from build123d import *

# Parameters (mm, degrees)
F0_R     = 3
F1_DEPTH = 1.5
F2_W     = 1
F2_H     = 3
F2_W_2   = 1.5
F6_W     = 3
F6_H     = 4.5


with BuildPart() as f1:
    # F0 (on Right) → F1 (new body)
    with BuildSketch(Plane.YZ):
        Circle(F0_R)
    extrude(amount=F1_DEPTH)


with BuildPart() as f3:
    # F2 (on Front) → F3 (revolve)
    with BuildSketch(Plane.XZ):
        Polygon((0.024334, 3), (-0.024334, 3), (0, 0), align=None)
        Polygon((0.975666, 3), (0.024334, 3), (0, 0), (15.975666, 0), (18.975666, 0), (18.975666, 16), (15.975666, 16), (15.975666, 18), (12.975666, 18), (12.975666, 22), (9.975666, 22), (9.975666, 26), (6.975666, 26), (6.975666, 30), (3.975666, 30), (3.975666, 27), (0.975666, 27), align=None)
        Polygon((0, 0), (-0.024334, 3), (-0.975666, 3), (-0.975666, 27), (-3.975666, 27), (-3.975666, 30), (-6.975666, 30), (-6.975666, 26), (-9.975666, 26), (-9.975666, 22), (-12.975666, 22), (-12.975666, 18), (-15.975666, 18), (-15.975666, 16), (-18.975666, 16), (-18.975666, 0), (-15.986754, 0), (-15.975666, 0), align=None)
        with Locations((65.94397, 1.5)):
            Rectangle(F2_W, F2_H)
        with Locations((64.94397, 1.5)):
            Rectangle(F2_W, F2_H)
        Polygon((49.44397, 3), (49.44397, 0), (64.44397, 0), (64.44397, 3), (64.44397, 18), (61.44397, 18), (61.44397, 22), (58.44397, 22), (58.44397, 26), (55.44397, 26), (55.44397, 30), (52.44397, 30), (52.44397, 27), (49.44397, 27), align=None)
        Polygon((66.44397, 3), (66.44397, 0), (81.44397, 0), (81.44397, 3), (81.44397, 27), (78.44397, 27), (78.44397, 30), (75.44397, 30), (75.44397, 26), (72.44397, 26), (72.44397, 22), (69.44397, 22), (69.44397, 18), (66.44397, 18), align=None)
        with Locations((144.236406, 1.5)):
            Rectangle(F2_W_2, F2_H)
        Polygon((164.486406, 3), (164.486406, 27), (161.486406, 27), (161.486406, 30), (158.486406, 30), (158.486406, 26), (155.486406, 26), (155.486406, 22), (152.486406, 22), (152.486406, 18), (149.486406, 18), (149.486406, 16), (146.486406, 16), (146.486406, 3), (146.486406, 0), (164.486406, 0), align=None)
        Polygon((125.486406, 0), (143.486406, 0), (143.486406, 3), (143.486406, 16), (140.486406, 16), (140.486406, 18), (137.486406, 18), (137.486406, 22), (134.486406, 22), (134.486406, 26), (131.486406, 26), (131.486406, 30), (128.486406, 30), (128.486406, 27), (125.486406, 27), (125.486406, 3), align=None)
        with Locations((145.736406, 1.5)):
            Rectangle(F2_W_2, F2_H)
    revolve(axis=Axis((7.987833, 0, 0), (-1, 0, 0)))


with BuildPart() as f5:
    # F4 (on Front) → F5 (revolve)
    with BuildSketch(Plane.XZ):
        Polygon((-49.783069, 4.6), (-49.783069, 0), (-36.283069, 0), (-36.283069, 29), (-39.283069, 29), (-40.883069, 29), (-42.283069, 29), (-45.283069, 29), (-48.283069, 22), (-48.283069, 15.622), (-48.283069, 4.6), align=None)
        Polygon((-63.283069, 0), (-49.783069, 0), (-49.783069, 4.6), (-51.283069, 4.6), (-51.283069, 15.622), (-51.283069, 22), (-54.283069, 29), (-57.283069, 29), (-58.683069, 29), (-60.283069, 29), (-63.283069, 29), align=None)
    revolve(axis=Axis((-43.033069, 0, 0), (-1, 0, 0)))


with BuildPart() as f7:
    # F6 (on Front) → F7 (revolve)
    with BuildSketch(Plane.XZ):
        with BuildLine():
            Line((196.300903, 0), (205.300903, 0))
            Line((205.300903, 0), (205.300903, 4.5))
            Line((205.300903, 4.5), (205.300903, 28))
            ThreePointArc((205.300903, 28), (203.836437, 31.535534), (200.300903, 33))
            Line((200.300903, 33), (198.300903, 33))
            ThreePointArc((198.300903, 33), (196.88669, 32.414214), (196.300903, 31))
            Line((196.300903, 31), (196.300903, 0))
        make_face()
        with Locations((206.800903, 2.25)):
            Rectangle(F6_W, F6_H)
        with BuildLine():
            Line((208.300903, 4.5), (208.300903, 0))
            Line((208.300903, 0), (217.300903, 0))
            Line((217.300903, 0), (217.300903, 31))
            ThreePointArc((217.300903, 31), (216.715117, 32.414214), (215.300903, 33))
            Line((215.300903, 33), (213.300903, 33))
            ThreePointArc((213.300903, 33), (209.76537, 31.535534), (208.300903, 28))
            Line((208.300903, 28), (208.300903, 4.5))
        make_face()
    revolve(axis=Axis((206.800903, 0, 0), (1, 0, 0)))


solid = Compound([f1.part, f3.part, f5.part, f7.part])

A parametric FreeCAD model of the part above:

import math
import FreeCAD as App
import Part
import Sketcher

doc = App.newDocument("Part")
body = doc.addObject("PartDesign::Body", "Body")

# Sketch on YZ plane
sketch1 = body.newObject("Sketcher::SketchObject", "Sketch")
sketch1.AttachmentSupport = (doc.getObject("YZ_Plane"), [""])
sketch1.MapMode = "FlatFace"
sketch1.addGeometry(Part.Circle(App.Vector(0, 0, 0), App.Vector(0, 0, 1), 3), False)
sketch1.addConstraint(Sketcher.Constraint("Coincident", 0, 3, -1, 1))
sketch1.addConstraint(Sketcher.Constraint("Diameter", 0, 6.0))
pad1 = body.newObject("PartDesign::Pad", "Pad")
pad1.Profile = sketch1
pad1.Length = 1.5
body2 = doc.addObject("PartDesign::Body", "Body001")
body2.AllowCompound = True

# Sketch on XZ plane
sketch2 = body2.newObject("Sketcher::SketchObject", "Sketch001")
sketch2.AttachmentSupport = (doc.getObject("XZ_Plane001"), [""])
sketch2.MapMode = "FlatFace"
sketch2.addGeometry(Part.LineSegment(App.Vector(19, 0, 0), App.Vector(19, 16, 0)), False)
sketch2.addGeometry(Part.LineSegment(App.Vector(19, 16, 0), App.Vector(16, 16, 0)), False)
sketch2.addGeometry(Part.LineSegment(App.Vector(16, 16, 0), App.Vector(16, 18, 0)), False)
sketch2.addGeometry(Part.LineSegment(App.Vector(16, 18, 0), App.Vector(13, 18, 0)), False)
sketch2.addGeometry(Part.LineSegment(App.Vector(13, 18, 0), App.Vector(13, 22, 0)), False)
sketch2.addGeometry(Part.LineSegment(App.Vector(13, 22, 0), App.Vector(10, 22, 0)), False)
sketch2.addGeometry(Part.LineSegment(App.Vector(10, 22, 0), App.Vector(10, 26, 0)), False)
sketch2.addGeometry(Part.LineSegment(App.Vector(10, 26, 0), App.Vector(7, 26, 0)), False)
sketch2.addGeometry(Part.LineSegment(App.Vector(7, 26, 0), App.Vector(7, 30, 0)), False)
sketch2.addGeometry(Part.LineSegment(App.Vector(7, 30, 0), App.Vector(4, 30, 0)), False)
sketch2.addGeometry(Part.LineSegment(App.Vector(4, 30, 0), App.Vector(4, 27, 0)), False)
sketch2.addGeometry(Part.LineSegment(App.Vector(4, 27, 0), App.Vector(1, 27, 0)), False)
sketch2.addGeometry(Part.LineSegment(App.Vector(1, 27, 0), App.Vector(1, 3, 0)), False)
sketch2.addGeometry(Part.LineSegment(App.Vector(1, 3, 0), App.Vector(-1, 3, 0)), False)
sketch2.addGeometry(Part.LineSegment(App.Vector(-1, 3, 0), App.Vector(-1, 27, 0)), False)
sketch2.addGeometry(Part.LineSegment(App.Vector(-1, 27, 0), App.Vector(-4, 27, 0)), False)
sketch2.addGeometry(Part.LineSegment(App.Vector(-4, 27, 0), App.Vector(-4, 30, 0)), False)
sketch2.addGeometry(Part.LineSegment(App.Vector(-4, 30, 0), App.Vector(-7, 30, 0)), False)
sketch2.addGeometry(Part.LineSegment(App.Vector(-7, 30, 0), App.Vector(-7, 26, 0)), False)
sketch2.addGeometry(Part.LineSegment(App.Vector(-7, 26, 0), App.Vector(-10, 26, 0)), False)
sketch2.addGeometry(Part.LineSegment(App.Vector(-10, 26, 0), App.Vector(-10, 22, 0)), False)
sketch2.addGeometry(Part.LineSegment(App.Vector(-10, 22, 0), App.Vector(-13, 22, 0)), False)
sketch2.addGeometry(Part.LineSegment(App.Vector(-13, 22, 0), App.Vector(-13, 18, 0)), False)
sketch2.addGeometry(Part.LineSegment(App.Vector(-13, 18, 0), App.Vector(-16, 18, 0)), False)
sketch2.addGeometry(Part.LineSegment(App.Vector(-16, 18, 0), App.Vector(-16, 16, 0)), False)
sketch2.addGeometry(Part.LineSegment(App.Vector(-16, 16, 0), App.Vector(-19, 16, 0)), False)
sketch2.addGeometry(Part.LineSegment(App.Vector(-19, 16, 0), App.Vector(-19, 0, 0)), False)
sketch2.addGeometry(Part.LineSegment(App.Vector(-19, 0, 0), App.Vector(19, 0, 0)), False)
sketch2.addGeometry(Part.LineSegment(App.Vector(66.4, 3, 0), App.Vector(64.4, 3, 0)), False)
sketch2.addGeometry(Part.LineSegment(App.Vector(64.4, 3, 0), App.Vector(64.4, 18, 0)), False)
sketch2.addGeometry(Part.LineSegment(App.Vector(64.4, 18, 0), App.Vector(61.4, 18, 0)), False)
sketch2.addGeometry(Part.LineSegment(App.Vector(61.4, 18, 0), App.Vector(61.4, 22, 0)), False)
sketch2.addGeometry(Part.LineSegment(App.Vector(61.4, 22, 0), App.Vector(58.4, 22, 0)), False)
sketch2.addGeometry(Part.LineSegment(App.Vector(58.4, 22, 0), App.Vector(58.4, 26, 0)), False)
sketch2.addGeometry(Part.LineSegment(App.Vector(58.4, 26, 0), App.Vector(55.4, 26, 0)), False)
sketch2.addGeometry(Part.LineSegment(App.Vector(55.4, 26, 0), App.Vector(55.4, 30, 0)), False)
sketch2.addGeometry(Part.LineSegment(App.Vector(55.4, 30, 0), App.Vector(52.4, 30, 0)), False)
sketch2.addGeometry(Part.LineSegment(App.Vector(52.4, 30, 0), App.Vector(52.4, 27, 0)), False)
sketch2.addGeometry(Part.LineSegment(App.Vector(52.4, 27, 0), App.Vector(49.4, 27, 0)), False)
sketch2.addGeometry(Part.LineSegment(App.Vector(49.4, 27, 0), App.Vector(49.4, 0, 0)), False)
sketch2.addGeometry(Part.LineSegment(App.Vector(49.4, 0, 0), App.Vector(81.4, 0, 0)), False)
sketch2.addGeometry(Part.LineSegment(App.Vector(81.4, 0, 0), App.Vector(81.4, 27, 0)), False)
sketch2.addGeometry(Part.LineSegment(App.Vector(81.4, 27, 0), App.Vector(78.4, 27, 0)), False)
sketch2.addGeometry(Part.LineSegment(App.Vector(78.4, 27, 0), App.Vector(78.4, 30, 0)), False)
sketch2.addGeometry(Part.LineSegment(App.Vector(78.4, 30, 0), App.Vector(75.4, 30, 0)), False)
sketch2.addGeometry(Part.LineSegment(App.Vector(75.4, 30, 0), App.Vector(75.4, 26, 0)), False)
sketch2.addGeometry(Part.LineSegment(App.Vector(75.4, 26, 0), App.Vector(72.4, 26, 0)), False)
sketch2.addGeometry(Part.LineSegment(App.Vector(72.4, 26, 0), App.Vector(72.4, 22, 0)), False)
sketch2.addGeometry(Part.LineSegment(App.Vector(72.4, 22, 0), App.Vector(69.4, 22, 0)), False)
sketch2.addGeometry(Part.LineSegment(App.Vector(69.4, 22, 0), App.Vector(69.4, 18, 0)), False)
sketch2.addGeometry(Part.LineSegment(App.Vector(69.4, 18, 0), App.Vector(66.4, 18, 0)), False)
sketch2.addGeometry(Part.LineSegment(App.Vector(66.4, 18, 0), App.Vector(66.4, 3, 0)), False)
sketch2.addGeometry(Part.LineSegment(App.Vector(143.5, 3, 0), App.Vector(143.5, 16, 0)), False)
sketch2.addGeometry(Part.LineSegment(App.Vector(143.5, 16, 0), App.Vector(140.5, 16, 0)), False)
sketch2.addGeometry(Part.LineSegment(App.Vector(140.5, 16, 0), App.Vector(140.5, 18, 0)), False)
sketch2.addGeometry(Part.LineSegment(App.Vector(140.5, 18, 0), App.Vector(137.5, 18, 0)), False)
sketch2.addGeometry(Part.LineSegment(App.Vector(137.5, 18, 0), App.Vector(137.5, 22, 0)), False)
sketch2.addGeometry(Part.LineSegment(App.Vector(137.5, 22, 0), App.Vector(134.5, 22, 0)), False)
sketch2.addGeometry(Part.LineSegment(App.Vector(134.5, 22, 0), App.Vector(134.5, 26, 0)), False)
sketch2.addGeometry(Part.LineSegment(App.Vector(134.5, 26, 0), App.Vector(131.5, 26, 0)), False)
sketch2.addGeometry(Part.LineSegment(App.Vector(131.5, 26, 0), App.Vector(131.5, 30, 0)), False)
sketch2.addGeometry(Part.LineSegment(App.Vector(131.5, 30, 0), App.Vector(128.5, 30, 0)), False)
sketch2.addGeometry(Part.LineSegment(App.Vector(128.5, 30, 0), App.Vector(128.5, 27, 0)), False)
sketch2.addGeometry(Part.LineSegment(App.Vector(128.5, 27, 0), App.Vector(125.5, 27, 0)), False)
sketch2.addGeometry(Part.LineSegment(App.Vector(125.5, 27, 0), App.Vector(125.5, 0, 0)), False)
sketch2.addGeometry(Part.LineSegment(App.Vector(125.5, 0, 0), App.Vector(164.5, 0, 0)), False)
sketch2.addGeometry(Part.LineSegment(App.Vector(164.5, 0, 0), App.Vector(164.5, 27, 0)), False)
sketch2.addGeometry(Part.LineSegment(App.Vector(164.5, 27, 0), App.Vector(161.5, 27, 0)), False)
sketch2.addGeometry(Part.LineSegment(App.Vector(161.5, 27, 0), App.Vector(161.5, 30, 0)), False)
sketch2.addGeometry(Part.LineSegment(App.Vector(161.5, 30, 0), App.Vector(158.5, 30, 0)), False)
sketch2.addGeometry(Part.LineSegment(App.Vector(158.5, 30, 0), App.Vector(158.5, 26, 0)), False)
sketch2.addGeometry(Part.LineSegment(App.Vector(158.5, 26, 0), App.Vector(155.5, 26, 0)), False)
sketch2.addGeometry(Part.LineSegment(App.Vector(155.5, 26, 0), App.Vector(155.5, 22, 0)), False)
sketch2.addGeometry(Part.LineSegment(App.Vector(155.5, 22, 0), App.Vector(152.5, 22, 0)), False)
sketch2.addGeometry(Part.LineSegment(App.Vector(152.5, 22, 0), App.Vector(152.5, 18, 0)), False)
sketch2.addGeometry(Part.LineSegment(App.Vector(152.5, 18, 0), App.Vector(149.5, 18, 0)), False)
sketch2.addGeometry(Part.LineSegment(App.Vector(149.5, 18, 0), App.Vector(149.5, 16, 0)), False)
sketch2.addGeometry(Part.LineSegment(App.Vector(149.5, 16, 0), App.Vector(146.5, 16, 0)), False)
sketch2.addGeometry(Part.LineSegment(App.Vector(146.5, 16, 0), App.Vector(146.5, 3, 0)), False)
sketch2.addGeometry(Part.LineSegment(App.Vector(146.5, 3, 0), App.Vector(143.5, 3, 0)), False)
sketch2.addConstraint(Sketcher.Constraint("Coincident", 0, 2, 1, 1))
sketch2.addConstraint(Sketcher.Constraint("Coincident", 1, 2, 2, 1))
sketch2.addConstraint(Sketcher.Constraint("Coincident", 2, 2, 3, 1))
sketch2.addConstraint(Sketcher.Constraint("Coincident", 3, 2, 4, 1))
sketch2.addConstraint(Sketcher.Constraint("Coincident", 4, 2, 5, 1))
sketch2.addConstraint(Sketcher.Constraint("Coincident", 5, 2, 6, 1))
sketch2.addConstraint(Sketcher.Constraint("Coincident", 6, 2, 7, 1))
sketch2.addConstraint(Sketcher.Constraint("Coincident", 7, 2, 8, 1))
sketch2.addConstraint(Sketcher.Constraint("Coincident", 8, 2, 9, 1))
sketch2.addConstraint(Sketcher.Constraint("Coincident", 9, 2, 10, 1))
sketch2.addConstraint(Sketcher.Constraint("Coincident", 10, 2, 11, 1))
sketch2.addConstraint(Sketcher.Constraint("Coincident", 11, 2, 12, 1))
sketch2.addConstraint(Sketcher.Constraint("Coincident", 12, 2, 13, 1))
sketch2.addConstraint(Sketcher.Constraint("Coincident", 13, 2, 14, 1))
sketch2.addConstraint(Sketcher.Constraint("Coincident", 14, 2, 15, 1))
sketch2.addConstraint(Sketcher.Constraint("Coincident", 15, 2, 16, 1))
sketch2.addConstraint(Sketcher.Constraint("Coincident", 16, 2, 17, 1))
sketch2.addConstraint(Sketcher.Constraint("Coincident", 17, 2, 18, 1))
sketch2.addConstraint(Sketcher.Constraint("Coincident", 18, 2, 19, 1))
sketch2.addConstraint(Sketcher.Constraint("Coincident", 19, 2, 20, 1))
sketch2.addConstraint(Sketcher.Constraint("Coincident", 20, 2, 21, 1))
sketch2.addConstraint(Sketcher.Constraint("Coincident", 21, 2, 22, 1))
sketch2.addConstraint(Sketcher.Constraint("Coincident", 22, 2, 23, 1))
sketch2.addConstraint(Sketcher.Constraint("Coincident", 23, 2, 24, 1))
sketch2.addConstraint(Sketcher.Constraint("Coincident", 24, 2, 25, 1))
sketch2.addConstraint(Sketcher.Constraint("Coincident", 25, 2, 26, 1))
sketch2.addConstraint(Sketcher.Constraint("Coincident", 26, 2, 27, 1))
sketch2.addConstraint(Sketcher.Constraint("Coincident", 27, 2, 0, 1))
sketch2.addConstraint(Sketcher.Constraint("Coincident", 28, 2, 29, 1))
sketch2.addConstraint(Sketcher.Constraint("Coincident", 29, 2, 30, 1))
sketch2.addConstraint(Sketcher.Constraint("Coincident", 30, 2, 31, 1))
sketch2.addConstraint(Sketcher.Constraint("Coincident", 31, 2, 32, 1))
sketch2.addConstraint(Sketcher.Constraint("Coincident", 32, 2, 33, 1))
sketch2.addConstraint(Sketcher.Constraint("Coincident", 33, 2, 34, 1))
sketch2.addConstraint(Sketcher.Constraint("Coincident", 34, 2, 35, 1))
sketch2.addConstraint(Sketcher.Constraint("Coincident", 35, 2, 36, 1))
sketch2.addConstraint(Sketcher.Constraint("Coincident", 36, 2, 37, 1))
sketch2.addConstraint(Sketcher.Constraint("Coincident", 37, 2, 38, 1))
sketch2.addConstraint(Sketcher.Constraint("Coincident", 38, 2, 39, 1))
sketch2.addConstraint(Sketcher.Constraint("Coincident", 39, 2, 40, 1))
sketch2.addConstraint(Sketcher.Constraint("Coincident", 40, 2, 41, 1))
sketch2.addConstraint(Sketcher.Constraint("Coincident", 41, 2, 42, 1))
sketch2.addConstraint(Sketcher.Constraint("Coincident", 42, 2, 43, 1))
sketch2.addConstraint(Sketcher.Constraint("Coincident", 43, 2, 44, 1))
sketch2.addConstraint(Sketcher.Constraint("Coincident", 44, 2, 45, 1))
sketch2.addConstraint(Sketcher.Constraint("Coincident", 45, 2, 46, 1))
sketch2.addConstraint(Sketcher.Constraint("Coincident", 46, 2, 47, 1))
sketch2.addConstraint(Sketcher.Constraint("Coincident", 47, 2, 48, 1))
sketch2.addConstraint(Sketcher.Constraint("Coincident", 48, 2, 49, 1))
sketch2.addConstraint(Sketcher.Constraint("Coincident", 49, 2, 50, 1))
sketch2.addConstraint(Sketcher.Constraint("Coincident", 50, 2, 51, 1))
sketch2.addConstraint(Sketcher.Constraint("Coincident", 51, 2, 28, 1))
sketch2.addConstraint(Sketcher.Constraint("Coincident", 52, 2, 53, 1))
sketch2.addConstraint(Sketcher.Constraint("Coincident", 53, 2, 54, 1))
sketch2.addConstraint(Sketcher.Constraint("Coincident", 54, 2, 55, 1))
sketch2.addConstraint(Sketcher.Constraint("Coincident", 55, 2, 56, 1))
sketch2.addConstraint(Sketcher.Constraint("Coincident", 56, 2, 57, 1))
sketch2.addConstraint(Sketcher.Constraint("Coincident", 57, 2, 58, 1))
sketch2.addConstraint(Sketcher.Constraint("Coincident", 58, 2, 59, 1))
sketch2.addConstraint(Sketcher.Constraint("Coincident", 59, 2, 60, 1))
sketch2.addConstraint(Sketcher.Constraint("Coincident", 60, 2, 61, 1))
sketch2.addConstraint(Sketcher.Constraint("Coincident", 61, 2, 62, 1))
sketch2.addConstraint(Sketcher.Constraint("Coincident", 62, 2, 63, 1))
sketch2.addConstraint(Sketcher.Constraint("Coincident", 63, 2, 64, 1))
sketch2.addConstraint(Sketcher.Constraint("Coincident", 64, 2, 65, 1))
sketch2.addConstraint(Sketcher.Constraint("Coincident", 65, 2, 66, 1))
sketch2.addConstraint(Sketcher.Constraint("Coincident", 66, 2, 67, 1))
sketch2.addConstraint(Sketcher.Constraint("Coincident", 67, 2, 68, 1))
sketch2.addConstraint(Sketcher.Constraint("Coincident", 68, 2, 69, 1))
sketch2.addConstraint(Sketcher.Constraint("Coincident", 69, 2, 70, 1))
sketch2.addConstraint(Sketcher.Constraint("Coincident", 70, 2, 71, 1))
sketch2.addConstraint(Sketcher.Constraint("Coincident", 71, 2, 72, 1))
sketch2.addConstraint(Sketcher.Constraint("Coincident", 72, 2, 73, 1))
sketch2.addConstraint(Sketcher.Constraint("Coincident", 73, 2, 74, 1))
sketch2.addConstraint(Sketcher.Constraint("Coincident", 74, 2, 75, 1))
sketch2.addConstraint(Sketcher.Constraint("Coincident", 75, 2, 76, 1))
sketch2.addConstraint(Sketcher.Constraint("Coincident", 76, 2, 77, 1))
sketch2.addConstraint(Sketcher.Constraint("Coincident", 77, 2, 78, 1))
sketch2.addConstraint(Sketcher.Constraint("Coincident", 78, 2, 79, 1))
sketch2.addConstraint(Sketcher.Constraint("Coincident", 79, 2, 52, 1))
sketch2.addConstraint(Sketcher.Constraint("Vertical", 0))
sketch2.addConstraint(Sketcher.Constraint("Horizontal", 1))
sketch2.addConstraint(Sketcher.Constraint("Vertical", 2))
sketch2.addConstraint(Sketcher.Constraint("Horizontal", 3))
sketch2.addConstraint(Sketcher.Constraint("Vertical", 4))
sketch2.addConstraint(Sketcher.Constraint("Horizontal", 5))
sketch2.addConstraint(Sketcher.Constraint("Vertical", 6))
sketch2.addConstraint(Sketcher.Constraint("Horizontal", 7))
sketch2.addConstraint(Sketcher.Constraint("Vertical", 8))
sketch2.addConstraint(Sketcher.Constraint("Horizontal", 9))
sketch2.addConstraint(Sketcher.Constraint("Vertical", 10))
sketch2.addConstraint(Sketcher.Constraint("Horizontal", 11))
sketch2.addConstraint(Sketcher.Constraint("Vertical", 12))
sketch2.addConstraint(Sketcher.Constraint("Horizontal", 13))
sketch2.addConstraint(Sketcher.Constraint("Vertical", 14))
sketch2.addConstraint(Sketcher.Constraint("Horizontal", 15))
sketch2.addConstraint(Sketcher.Constraint("Vertical", 16))
sketch2.addConstraint(Sketcher.Constraint("Horizontal", 17))
sketch2.addConstraint(Sketcher.Constraint("Vertical", 18))
sketch2.addConstraint(Sketcher.Constraint("Horizontal", 19))
sketch2.addConstraint(Sketcher.Constraint("Vertical", 20))
sketch2.addConstraint(Sketcher.Constraint("Horizontal", 21))
sketch2.addConstraint(Sketcher.Constraint("Vertical", 22))
sketch2.addConstraint(Sketcher.Constraint("Horizontal", 23))
sketch2.addConstraint(Sketcher.Constraint("Vertical", 24))
sketch2.addConstraint(Sketcher.Constraint("Horizontal", 25))
sketch2.addConstraint(Sketcher.Constraint("Vertical", 26))
sketch2.addConstraint(Sketcher.Constraint("Horizontal", 27))
sketch2.addConstraint(Sketcher.Constraint("Horizontal", 28))
sketch2.addConstraint(Sketcher.Constraint("Vertical", 29))
sketch2.addConstraint(Sketcher.Constraint("Horizontal", 30))
sketch2.addConstraint(Sketcher.Constraint("Vertical", 31))
sketch2.addConstraint(Sketcher.Constraint("Horizontal", 32))
sketch2.addConstraint(Sketcher.Constraint("Vertical", 33))
sketch2.addConstraint(Sketcher.Constraint("Horizontal", 34))
sketch2.addConstraint(Sketcher.Constraint("Vertical", 35))
sketch2.addConstraint(Sketcher.Constraint("Horizontal", 36))
sketch2.addConstraint(Sketcher.Constraint("Vertical", 37))
sketch2.addConstraint(Sketcher.Constraint("Horizontal", 38))
sketch2.addConstraint(Sketcher.Constraint("Vertical", 39))
sketch2.addConstraint(Sketcher.Constraint("Horizontal", 40))
sketch2.addConstraint(Sketcher.Constraint("Vertical", 41))
sketch2.addConstraint(Sketcher.Constraint("Horizontal", 42))
sketch2.addConstraint(Sketcher.Constraint("Vertical", 43))
sketch2.addConstraint(Sketcher.Constraint("Horizontal", 44))
sketch2.addConstraint(Sketcher.Constraint("Vertical", 45))
sketch2.addConstraint(Sketcher.Constraint("Horizontal", 46))
sketch2.addConstraint(Sketcher.Constraint("Vertical", 47))
sketch2.addConstraint(Sketcher.Constraint("Horizontal", 48))
sketch2.addConstraint(Sketcher.Constraint("Vertical", 49))
sketch2.addConstraint(Sketcher.Constraint("Horizontal", 50))
sketch2.addConstraint(Sketcher.Constraint("Vertical", 51))
sketch2.addConstraint(Sketcher.Constraint("Vertical", 52))
sketch2.addConstraint(Sketcher.Constraint("Horizontal", 53))
sketch2.addConstraint(Sketcher.Constraint("Vertical", 54))
sketch2.addConstraint(Sketcher.Constraint("Horizontal", 55))
sketch2.addConstraint(Sketcher.Constraint("Vertical", 56))
sketch2.addConstraint(Sketcher.Constraint("Horizontal", 57))
sketch2.addConstraint(Sketcher.Constraint("Vertical", 58))
sketch2.addConstraint(Sketcher.Constraint("Horizontal", 59))
sketch2.addConstraint(Sketcher.Constraint("Vertical", 60))
sketch2.addConstraint(Sketcher.Constraint("Horizontal", 61))
sketch2.addConstraint(Sketcher.Constraint("Vertical", 62))
sketch2.addConstraint(Sketcher.Constraint("Horizontal", 63))
sketch2.addConstraint(Sketcher.Constraint("Vertical", 64))
sketch2.addConstraint(Sketcher.Constraint("Horizontal", 65))
sketch2.addConstraint(Sketcher.Constraint("Vertical", 66))
sketch2.addConstraint(Sketcher.Constraint("Horizontal", 67))
sketch2.addConstraint(Sketcher.Constraint("Vertical", 68))
sketch2.addConstraint(Sketcher.Constraint("Horizontal", 69))
sketch2.addConstraint(Sketcher.Constraint("Vertical", 70))
sketch2.addConstraint(Sketcher.Constraint("Horizontal", 71))
sketch2.addConstraint(Sketcher.Constraint("Vertical", 72))
sketch2.addConstraint(Sketcher.Constraint("Horizontal", 73))
sketch2.addConstraint(Sketcher.Constraint("Vertical", 74))
sketch2.addConstraint(Sketcher.Constraint("Horizontal", 75))
sketch2.addConstraint(Sketcher.Constraint("Vertical", 76))
sketch2.addConstraint(Sketcher.Constraint("Horizontal", 77))
sketch2.addConstraint(Sketcher.Constraint("Vertical", 78))
sketch2.addConstraint(Sketcher.Constraint("Horizontal", 79))
sketch2.addConstraint(Sketcher.Constraint("Symmetric", 26, 2, 27, 2, -1, 1))
sketch2.addConstraint(Sketcher.Constraint("Symmetric", 11, 2, 14, 2, -2))
sketch2.addConstraint(Sketcher.Constraint("Symmetric", 9, 2, 16, 2, -2))
sketch2.addConstraint(Sketcher.Constraint("Symmetric", 7, 2, 18, 2, -2))
sketch2.addConstraint(Sketcher.Constraint("Symmetric", 5, 2, 20, 2, -2))
sketch2.addConstraint(Sketcher.Constraint("Symmetric", 3, 2, 22, 2, -2))
sketch2.addConstraint(Sketcher.Constraint("Symmetric", 1, 2, 24, 2, -2))
sketch2.addConstraint(Sketcher.Constraint("PointOnObject", 39, 2, -1))
sketch2.addConstraint(Sketcher.Constraint("PointOnObject", 64, 2, -1))
sketch2.addConstraint(Sketcher.Constraint("Horizontal", 13, 2, 28, 2))
sketch2.addConstraint(Sketcher.Constraint("Horizontal", 23, 2, 29, 2))
sketch2.addConstraint(Sketcher.Constraint("Horizontal", 21, 2, 31, 2))
sketch2.addConstraint(Sketcher.Constraint("Horizontal", 19, 2, 33, 2))
sketch2.addConstraint(Sketcher.Constraint("Horizontal", 17, 2, 35, 2))
sketch2.addConstraint(Sketcher.Constraint("Horizontal", 15, 2, 37, 2))
sketch2.addConstraint(Sketcher.Constraint("Horizontal", 38, 2, 41, 2))
sketch2.addConstraint(Sketcher.Constraint("Horizontal", 36, 2, 43, 2))
sketch2.addConstraint(Sketcher.Constraint("Horizontal", 34, 2, 45, 2))
sketch2.addConstraint(Sketcher.Constraint("Horizontal", 32, 2, 47, 2))
sketch2.addConstraint(Sketcher.Constraint("Horizontal", 30, 2, 49, 2))
sketch2.addConstraint(Sketcher.Constraint("Horizontal", 25, 2, 52, 2))
sketch2.addConstraint(Sketcher.Constraint("Horizontal", 50, 2, 54, 2))
sketch2.addConstraint(Sketcher.Constraint("Horizontal", 48, 2, 56, 2))
sketch2.addConstraint(Sketcher.Constraint("Horizontal", 46, 2, 58, 2))
sketch2.addConstraint(Sketcher.Constraint("Horizontal", 44, 2, 60, 2))
sketch2.addConstraint(Sketcher.Constraint("Horizontal", 42, 2, 62, 2))
sketch2.addConstraint(Sketcher.Constraint("Horizontal", 63, 2, 66, 2))
sketch2.addConstraint(Sketcher.Constraint("Horizontal", 61, 2, 68, 2))
sketch2.addConstraint(Sketcher.Constraint("Horizontal", 59, 2, 70, 2))
sketch2.addConstraint(Sketcher.Constraint("Horizontal", 57, 2, 72, 2))
sketch2.addConstraint(Sketcher.Constraint("Horizontal", 55, 2, 74, 2))
sketch2.addConstraint(Sketcher.Constraint("Horizontal", 53, 2, 76, 2))
sketch2.addConstraint(Sketcher.Constraint("Horizontal", 51, 2, 78, 2))
sketch2.addConstraint(Sketcher.Constraint("Equal", 1, 3))
sketch2.addConstraint(Sketcher.Constraint("Equal", 3, 5))
sketch2.addConstraint(Sketcher.Constraint("Equal", 5, 7))
sketch2.addConstraint(Sketcher.Constraint("Equal", 7, 9))
sketch2.addConstraint(Sketcher.Constraint("Equal", 9, 11))
sketch2.addConstraint(Sketcher.Constraint("Equal", 25, 30))
sketch2.addConstraint(Sketcher.Constraint("Equal", 30, 32))
sketch2.addConstraint(Sketcher.Constraint("Equal", 32, 34))
sketch2.addConstraint(Sketcher.Constraint("Equal", 34, 36))
sketch2.addConstraint(Sketcher.Constraint("Equal", 36, 38))
sketch2.addConstraint(Sketcher.Constraint("Equal", 38, 42))
sketch2.addConstraint(Sketcher.Constraint("Equal", 42, 44))
sketch2.addConstraint(Sketcher.Constraint("Equal", 44, 46))
sketch2.addConstraint(Sketcher.Constraint("Equal", 46, 48))
sketch2.addConstraint(Sketcher.Constraint("Equal", 48, 50))
sketch2.addConstraint(Sketcher.Constraint("Equal", 50, 53))
sketch2.addConstraint(Sketcher.Constraint("Equal", 53, 55))
sketch2.addConstraint(Sketcher.Constraint("Equal", 55, 57))
sketch2.addConstraint(Sketcher.Constraint("Equal", 57, 59))
sketch2.addConstraint(Sketcher.Constraint("Equal", 59, 61))
sketch2.addConstraint(Sketcher.Constraint("Equal", 61, 63))
sketch2.addConstraint(Sketcher.Constraint("Equal", 63, 67))
sketch2.addConstraint(Sketcher.Constraint("Equal", 67, 69))
sketch2.addConstraint(Sketcher.Constraint("Equal", 69, 71))
sketch2.addConstraint(Sketcher.Constraint("Equal", 71, 73))
sketch2.addConstraint(Sketcher.Constraint("Equal", 73, 75))
sketch2.addConstraint(Sketcher.Constraint("Equal", 75, 77))
sketch2.addConstraint(Sketcher.Constraint("Equal", 77, 79))
sketch2.addConstraint(Sketcher.Constraint("Equal", 28, 2))
sketch2.addConstraint(Sketcher.Constraint("Equal", 4, 6))
sketch2.addConstraint(Sketcher.Constraint("Equal", 6, 8))
sketch2.addConstraint(Sketcher.Constraint("Equal", 79, 10))
sketch2.addConstraint(Sketcher.Constraint("DistanceX", 1, 2, 1, 1, 3.0))
sketch2.addConstraint(Sketcher.Constraint("DistanceX", 28, 2, 28, 1, 2.0))
sketch2.addConstraint(Sketcher.Constraint("DistanceY", 0, 1, 0, 2, 16.0))
sketch2.addConstraint(Sketcher.Constraint("DistanceY", 4, 1, 4, 2, 4.0))
sketch2.addConstraint(Sketcher.Constraint("DistanceY", 12, 2, 12, 1, 24.0))
sketch2.addConstraint(Sketcher.Constraint("DistanceX", 13, 2, 13, 1, 1.951332))
sketch2.addConstraint(Sketcher.Constraint("DistanceX", -1, 1, 28, 2, 64.44397))
sketch2.addConstraint(Sketcher.Constraint("DistanceX", -1, 1, 52, 2, 143.486406))
revolution = body2.newObject("PartDesign::Revolution", "Revolution")
revolution.Profile = sketch2
revolution.ReferenceAxis = (sketch2, ["H_Axis"])
revolution.Angle = 360
body3 = doc.addObject("PartDesign::Body", "Body002")

# Sketch on XZ plane
sketch3 = body3.newObject("Sketcher::SketchObject", "Sketch002")
sketch3.AttachmentSupport = (doc.getObject("XZ_Plane002"), [""])
sketch3.MapMode = "FlatFace"
sketch3.addGeometry(Part.LineSegment(App.Vector(-36.3, 0, 0), App.Vector(-36.3, 29, 0)), False)
sketch3.addGeometry(Part.LineSegment(App.Vector(-36.3, 29, 0), App.Vector(-45.3, 29, 0)), False)
sketch3.addGeometry(Part.LineSegment(App.Vector(-45.3, 29, 0), App.Vector(-48.3, 22, 0)), False)
sketch3.addGeometry(Part.LineSegment(App.Vector(-48.3, 22, 0), App.Vector(-48.3, 4.6, 0)), False)
sketch3.addGeometry(Part.LineSegment(App.Vector(-48.3, 4.6, 0), App.Vector(-51.3, 4.6, 0)), False)
sketch3.addGeometry(Part.LineSegment(App.Vector(-51.3, 4.6, 0), App.Vector(-51.3, 22, 0)), False)
sketch3.addGeometry(Part.LineSegment(App.Vector(-51.3, 22, 0), App.Vector(-54.3, 29, 0)), False)
sketch3.addGeometry(Part.LineSegment(App.Vector(-54.3, 29, 0), App.Vector(-63.3, 29, 0)), False)
sketch3.addGeometry(Part.LineSegment(App.Vector(-63.3, 29, 0), App.Vector(-63.3, 0, 0)), False)
sketch3.addGeometry(Part.LineSegment(App.Vector(-63.3, 0, 0), App.Vector(-36.3, 0, 0)), False)
sketch3.addConstraint(Sketcher.Constraint("Coincident", 0, 2, 1, 1))
sketch3.addConstraint(Sketcher.Constraint("Coincident", 1, 2, 2, 1))
sketch3.addConstraint(Sketcher.Constraint("Coincident", 2, 2, 3, 1))
sketch3.addConstraint(Sketcher.Constraint("Coincident", 3, 2, 4, 1))
sketch3.addConstraint(Sketcher.Constraint("Coincident", 4, 2, 5, 1))
sketch3.addConstraint(Sketcher.Constraint("Coincident", 5, 2, 6, 1))
sketch3.addConstraint(Sketcher.Constraint("Coincident", 6, 2, 7, 1))
sketch3.addConstraint(Sketcher.Constraint("Coincident", 7, 2, 8, 1))
sketch3.addConstraint(Sketcher.Constraint("Coincident", 8, 2, 9, 1))
sketch3.addConstraint(Sketcher.Constraint("Coincident", 9, 2, 0, 1))
sketch3.addConstraint(Sketcher.Constraint("Vertical", 0))
sketch3.addConstraint(Sketcher.Constraint("Horizontal", 1))
sketch3.addConstraint(Sketcher.Constraint("Vertical", 3))
sketch3.addConstraint(Sketcher.Constraint("Horizontal", 4))
sketch3.addConstraint(Sketcher.Constraint("Vertical", 5))
sketch3.addConstraint(Sketcher.Constraint("Horizontal", 7))
sketch3.addConstraint(Sketcher.Constraint("Vertical", 8))
sketch3.addConstraint(Sketcher.Constraint("Horizontal", 9))
sketch3.addConstraint(Sketcher.Constraint("PointOnObject", 8, 2, -1))
sketch3.addConstraint(Sketcher.Constraint("Horizontal", 2, 2, 5, 2))
sketch3.addConstraint(Sketcher.Constraint("Horizontal", 1, 2, 6, 2))
sketch3.addConstraint(Sketcher.Constraint("Equal", 1, 7))
sketch3.addConstraint(Sketcher.Constraint("Equal", 2, 6))
sketch3.addConstraint(Sketcher.Constraint("DistanceX", 1, 2, 1, 1, 9.0))
sketch3.addConstraint(Sketcher.Constraint("DistanceX", 4, 2, 4, 1, 3.0))
sketch3.addConstraint(Sketcher.Constraint("DistanceX", 9, 1, 9, 2, 27.0))
sketch3.addConstraint(Sketcher.Constraint("DistanceY", 0, 1, 0, 2, 29.0))
sketch3.addConstraint(Sketcher.Constraint("DistanceY", 3, 2, 3, 1, 17.4))
sketch3.addConstraint(Sketcher.Constraint("DistanceY", -1, 1, 2, 2, 22.0))
sketch3.addConstraint(Sketcher.Constraint("DistanceX", 0, 2, -1, 1, 36.283069))
revolution2 = body3.newObject("PartDesign::Revolution", "Revolution001")
revolution2.Profile = sketch3
revolution2.ReferenceAxis = (sketch3, ["H_Axis"])
revolution2.Angle = 360
body4 = doc.addObject("PartDesign::Body", "Body003")

# Sketch on XZ plane
sketch4 = body4.newObject("Sketcher::SketchObject", "Sketch003")
sketch4.AttachmentSupport = (doc.getObject("XZ_Plane003"), [""])
sketch4.MapMode = "FlatFace"
sketch4.addGeometry(Part.LineSegment(App.Vector(196.3, 0, 0), App.Vector(217.3, 0, 0)), False)
sketch4.addGeometry(Part.LineSegment(App.Vector(217.3, 0, 0), App.Vector(217.3, 31, 0)), False)
sketch4.addGeometry(Part.ArcOfCircle(Part.Circle(App.Vector(215.3, 31, 0), App.Vector(0, 0, 1), 2), math.radians(0), math.radians(90)), False)
sketch4.addGeometry(Part.LineSegment(App.Vector(215.3, 33, 0), App.Vector(213.3, 33, 0)), False)
sketch4.addGeometry(Part.ArcOfCircle(Part.Circle(App.Vector(213.3, 28, 0), App.Vector(0, 0, 1), 5), math.radians(90), math.radians(180)), False)
sketch4.addGeometry(Part.LineSegment(App.Vector(208.3, 28, 0), App.Vector(208.3, 4.5, 0)), False)
sketch4.addGeometry(Part.LineSegment(App.Vector(208.3, 4.5, 0), App.Vector(205.3, 4.5, 0)), False)
sketch4.addGeometry(Part.LineSegment(App.Vector(205.3, 4.5, 0), App.Vector(205.3, 28, 0)), False)
sketch4.addGeometry(Part.ArcOfCircle(Part.Circle(App.Vector(200.3, 28, 0), App.Vector(0, 0, 1), 5), math.radians(0), math.radians(90)), False)
sketch4.addGeometry(Part.LineSegment(App.Vector(200.3, 33, 0), App.Vector(198.3, 33, 0)), False)
sketch4.addGeometry(Part.ArcOfCircle(Part.Circle(App.Vector(198.3, 31, 0), App.Vector(0, 0, 1), 2), math.radians(90), math.radians(180)), False)
sketch4.addGeometry(Part.LineSegment(App.Vector(196.3, 31, 0), App.Vector(196.3, 0, 0)), False)
sketch4.addConstraint(Sketcher.Constraint("Coincident", 0, 2, 1, 1))
sketch4.addConstraint(Sketcher.Constraint("Tangent", 1, 2, 2, 1))
sketch4.addConstraint(Sketcher.Constraint("Tangent", 2, 2, 3, 1))
sketch4.addConstraint(Sketcher.Constraint("Tangent", 3, 2, 4, 1))
sketch4.addConstraint(Sketcher.Constraint("Tangent", 4, 2, 5, 1))
sketch4.addConstraint(Sketcher.Constraint("Coincident", 5, 2, 6, 1))
sketch4.addConstraint(Sketcher.Constraint("Coincident", 6, 2, 7, 1))
sketch4.addConstraint(Sketcher.Constraint("Tangent", 7, 2, 8, 1))
sketch4.addConstraint(Sketcher.Constraint("Tangent", 8, 2, 9, 1))
sketch4.addConstraint(Sketcher.Constraint("Tangent", 9, 2, 10, 1))
sketch4.addConstraint(Sketcher.Constraint("Tangent", 10, 2, 11, 1))
sketch4.addConstraint(Sketcher.Constraint("Coincident", 11, 2, 0, 1))
sketch4.addConstraint(Sketcher.Constraint("Horizontal", 0))
sketch4.addConstraint(Sketcher.Constraint("Vertical", 1))
sketch4.addConstraint(Sketcher.Constraint("Horizontal", 3))
sketch4.addConstraint(Sketcher.Constraint("Vertical", 5))
sketch4.addConstraint(Sketcher.Constraint("Horizontal", 6))
sketch4.addConstraint(Sketcher.Constraint("Vertical", 7))
sketch4.addConstraint(Sketcher.Constraint("Horizontal", 9))
sketch4.addConstraint(Sketcher.Constraint("Vertical", 11))
sketch4.addConstraint(Sketcher.Constraint("Equal", 4, 8))
sketch4.addConstraint(Sketcher.Constraint("Equal", 2, 10))
sketch4.addConstraint(Sketcher.Constraint("PointOnObject", 0, 2, -1))
sketch4.addConstraint(Sketcher.Constraint("Horizontal", 4, 3, 8, 3))
sketch4.addConstraint(Sketcher.Constraint("Equal", 3, 9))
sketch4.addConstraint(Sketcher.Constraint("Radius", 2, 1.999999))
sketch4.addConstraint(Sketcher.Constraint("Radius", 4, 5.000001))
sketch4.addConstraint(Sketcher.Constraint("DistanceX", 0, 1, 0, 2, 21.0))
sketch4.addConstraint(Sketcher.Constraint("DistanceX", 3, 2, 3, 1, 2.0))
sketch4.addConstraint(Sketcher.Constraint("DistanceY", 1, 1, 1, 2, 31.0))
sketch4.addConstraint(Sketcher.Constraint("DistanceY", 5, 2, 5, 1, 23.5))
sketch4.addConstraint(Sketcher.Constraint("DistanceX", -1, 1, 2, 3, 215.300904))
revolution3 = body4.newObject("PartDesign::Revolution", "Revolution002")
revolution3.Profile = sketch4
revolution3.ReferenceAxis = (sketch4, ["H_Axis"])
revolution3.Angle = 360

doc.recompute()
